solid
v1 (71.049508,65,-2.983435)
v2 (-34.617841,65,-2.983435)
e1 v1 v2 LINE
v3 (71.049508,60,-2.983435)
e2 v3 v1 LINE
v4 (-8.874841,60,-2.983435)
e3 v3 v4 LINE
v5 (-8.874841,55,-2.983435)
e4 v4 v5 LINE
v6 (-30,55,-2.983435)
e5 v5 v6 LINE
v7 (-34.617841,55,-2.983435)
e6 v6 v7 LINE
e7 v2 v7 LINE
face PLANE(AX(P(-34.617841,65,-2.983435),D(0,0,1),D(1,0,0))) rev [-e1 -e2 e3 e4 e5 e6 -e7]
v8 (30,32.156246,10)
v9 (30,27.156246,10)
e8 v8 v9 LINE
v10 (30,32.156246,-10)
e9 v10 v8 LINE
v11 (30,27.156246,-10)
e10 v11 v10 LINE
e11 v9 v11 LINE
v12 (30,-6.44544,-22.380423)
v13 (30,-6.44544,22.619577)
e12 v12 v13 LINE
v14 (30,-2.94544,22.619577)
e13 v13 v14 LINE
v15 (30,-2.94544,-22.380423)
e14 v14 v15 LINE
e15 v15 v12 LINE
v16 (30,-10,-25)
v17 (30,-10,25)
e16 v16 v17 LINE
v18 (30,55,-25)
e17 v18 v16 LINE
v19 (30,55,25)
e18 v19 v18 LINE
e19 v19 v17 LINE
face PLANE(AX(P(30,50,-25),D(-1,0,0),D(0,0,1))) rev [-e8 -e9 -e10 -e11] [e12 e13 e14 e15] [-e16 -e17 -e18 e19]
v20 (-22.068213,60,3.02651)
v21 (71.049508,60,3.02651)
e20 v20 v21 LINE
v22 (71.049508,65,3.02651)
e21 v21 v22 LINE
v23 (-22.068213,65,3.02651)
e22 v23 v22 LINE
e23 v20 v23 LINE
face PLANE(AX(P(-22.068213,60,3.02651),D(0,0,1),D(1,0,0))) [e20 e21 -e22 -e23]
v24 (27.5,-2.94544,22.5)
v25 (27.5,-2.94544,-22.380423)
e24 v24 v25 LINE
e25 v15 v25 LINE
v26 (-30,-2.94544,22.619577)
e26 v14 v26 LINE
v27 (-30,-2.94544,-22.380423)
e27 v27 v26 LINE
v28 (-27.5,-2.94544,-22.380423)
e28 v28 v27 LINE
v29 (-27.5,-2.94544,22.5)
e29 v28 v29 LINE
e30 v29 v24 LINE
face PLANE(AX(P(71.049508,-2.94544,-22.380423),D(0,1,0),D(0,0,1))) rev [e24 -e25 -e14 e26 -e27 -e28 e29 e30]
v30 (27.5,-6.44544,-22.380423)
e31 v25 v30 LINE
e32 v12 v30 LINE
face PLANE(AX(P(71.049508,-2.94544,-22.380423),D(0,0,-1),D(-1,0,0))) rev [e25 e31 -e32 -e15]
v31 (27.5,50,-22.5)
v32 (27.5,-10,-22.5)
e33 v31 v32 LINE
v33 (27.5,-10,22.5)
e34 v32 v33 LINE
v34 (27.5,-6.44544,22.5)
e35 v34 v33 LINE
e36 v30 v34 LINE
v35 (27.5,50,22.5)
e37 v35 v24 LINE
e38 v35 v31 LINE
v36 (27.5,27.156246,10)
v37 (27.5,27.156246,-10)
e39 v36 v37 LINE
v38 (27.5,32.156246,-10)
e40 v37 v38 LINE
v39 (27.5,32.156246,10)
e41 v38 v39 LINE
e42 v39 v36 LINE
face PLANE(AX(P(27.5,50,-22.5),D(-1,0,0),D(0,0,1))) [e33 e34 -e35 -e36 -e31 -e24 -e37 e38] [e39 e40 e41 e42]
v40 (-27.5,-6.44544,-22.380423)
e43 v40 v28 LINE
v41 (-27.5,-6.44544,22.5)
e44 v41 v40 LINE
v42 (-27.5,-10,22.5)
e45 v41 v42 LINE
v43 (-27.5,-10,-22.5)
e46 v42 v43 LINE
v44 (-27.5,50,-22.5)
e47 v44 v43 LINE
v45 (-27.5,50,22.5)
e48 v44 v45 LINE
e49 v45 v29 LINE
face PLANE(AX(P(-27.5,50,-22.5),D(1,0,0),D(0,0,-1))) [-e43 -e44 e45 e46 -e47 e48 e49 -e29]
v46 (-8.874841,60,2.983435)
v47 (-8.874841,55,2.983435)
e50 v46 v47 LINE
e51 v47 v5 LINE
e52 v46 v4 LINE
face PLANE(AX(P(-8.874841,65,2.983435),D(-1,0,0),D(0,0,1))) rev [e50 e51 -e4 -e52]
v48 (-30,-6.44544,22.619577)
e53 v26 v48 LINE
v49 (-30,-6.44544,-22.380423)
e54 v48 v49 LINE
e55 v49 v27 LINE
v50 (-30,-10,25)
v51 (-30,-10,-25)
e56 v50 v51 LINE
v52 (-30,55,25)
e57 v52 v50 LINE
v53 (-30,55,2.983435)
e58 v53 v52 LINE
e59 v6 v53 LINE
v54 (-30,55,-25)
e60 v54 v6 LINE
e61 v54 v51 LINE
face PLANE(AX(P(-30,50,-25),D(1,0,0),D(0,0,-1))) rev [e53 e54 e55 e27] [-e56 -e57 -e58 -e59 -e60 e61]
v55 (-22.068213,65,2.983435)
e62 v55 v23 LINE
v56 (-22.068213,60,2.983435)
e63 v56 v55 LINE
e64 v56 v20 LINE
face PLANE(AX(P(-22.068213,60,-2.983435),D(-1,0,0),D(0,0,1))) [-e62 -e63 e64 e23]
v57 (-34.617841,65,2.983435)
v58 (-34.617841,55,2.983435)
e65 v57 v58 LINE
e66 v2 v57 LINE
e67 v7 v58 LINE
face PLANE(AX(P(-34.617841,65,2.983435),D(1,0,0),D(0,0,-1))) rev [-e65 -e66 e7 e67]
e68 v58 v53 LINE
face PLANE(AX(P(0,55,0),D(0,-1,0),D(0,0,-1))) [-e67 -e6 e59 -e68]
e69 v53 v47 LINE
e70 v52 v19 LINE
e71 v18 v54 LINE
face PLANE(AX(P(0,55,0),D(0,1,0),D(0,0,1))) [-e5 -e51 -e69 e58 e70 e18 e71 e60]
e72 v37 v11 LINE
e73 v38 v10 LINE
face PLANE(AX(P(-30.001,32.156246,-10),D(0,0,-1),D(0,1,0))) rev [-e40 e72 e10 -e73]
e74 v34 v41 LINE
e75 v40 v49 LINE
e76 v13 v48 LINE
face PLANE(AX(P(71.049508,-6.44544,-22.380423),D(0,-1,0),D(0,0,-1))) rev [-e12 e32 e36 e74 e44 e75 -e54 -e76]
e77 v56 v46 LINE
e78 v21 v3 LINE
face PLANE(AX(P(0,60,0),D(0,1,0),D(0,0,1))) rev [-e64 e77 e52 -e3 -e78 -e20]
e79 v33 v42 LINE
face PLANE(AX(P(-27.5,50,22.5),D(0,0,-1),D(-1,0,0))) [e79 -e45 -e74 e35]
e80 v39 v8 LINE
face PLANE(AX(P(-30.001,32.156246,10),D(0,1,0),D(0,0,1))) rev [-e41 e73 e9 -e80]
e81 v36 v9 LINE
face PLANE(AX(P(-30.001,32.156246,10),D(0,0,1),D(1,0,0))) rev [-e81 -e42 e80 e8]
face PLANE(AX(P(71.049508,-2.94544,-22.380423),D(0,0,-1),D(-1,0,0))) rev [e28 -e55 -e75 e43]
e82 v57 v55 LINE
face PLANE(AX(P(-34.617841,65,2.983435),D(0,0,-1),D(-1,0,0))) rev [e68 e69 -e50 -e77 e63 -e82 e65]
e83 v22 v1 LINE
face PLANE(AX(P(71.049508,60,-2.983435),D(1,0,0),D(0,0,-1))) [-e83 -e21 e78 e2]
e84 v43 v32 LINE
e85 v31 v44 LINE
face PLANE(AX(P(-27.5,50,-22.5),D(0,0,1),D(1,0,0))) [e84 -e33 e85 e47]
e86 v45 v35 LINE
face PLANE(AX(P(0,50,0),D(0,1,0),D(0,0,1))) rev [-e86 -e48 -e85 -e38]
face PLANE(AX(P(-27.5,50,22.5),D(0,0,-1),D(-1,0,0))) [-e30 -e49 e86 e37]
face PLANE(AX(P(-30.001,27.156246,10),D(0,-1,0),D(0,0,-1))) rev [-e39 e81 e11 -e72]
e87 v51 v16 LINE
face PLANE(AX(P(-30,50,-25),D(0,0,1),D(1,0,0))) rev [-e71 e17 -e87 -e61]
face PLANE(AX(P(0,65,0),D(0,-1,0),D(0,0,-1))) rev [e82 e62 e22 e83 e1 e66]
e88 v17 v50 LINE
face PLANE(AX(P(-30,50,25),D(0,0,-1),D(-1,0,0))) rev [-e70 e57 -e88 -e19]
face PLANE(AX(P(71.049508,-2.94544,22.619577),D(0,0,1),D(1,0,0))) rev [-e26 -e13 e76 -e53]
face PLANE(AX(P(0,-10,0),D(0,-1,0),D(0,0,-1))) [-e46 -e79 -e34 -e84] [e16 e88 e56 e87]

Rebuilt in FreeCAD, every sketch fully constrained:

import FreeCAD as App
import Part
import Sketcher
from FreeCAD import Vector
Q = App.Units.Quantity


def add_polygon(sketch, points):
    """Adds a closed chain of lines whose ends are joined by coincident constraints."""
    first, n = sketch.GeometryCount, len(points)
    for a, b in zip(points, points[1:] + points[:1]):
        sketch.addGeometry(Part.LineSegment(App.Vector(*a, 0), App.Vector(*b, 0)), False)
    for i in range(n):
        sketch.addConstraint(Sketcher.Constraint("Coincident", first + i, 2, first + (i + 1) % n, 1))

doc = App.newDocument("Part")
body = doc.addObject("PartDesign::Body", "Body")

sketch1 = body.newObject("Sketcher::SketchObject", "Sketch")
sketch1.AttachmentSupport = (doc.getObject("XZ_Plane"), [""])
sketch1.MapMode = "FlatFace"
add_polygon(sketch1, [(-30, -25), (-30, 25), (30, 25), (30, -25)])
add_polygon(sketch1, [(28, 22), (-28, 22), (-28, -22), (28, -22)])
sketch1.addConstraint(Sketcher.Constraint("Vertical", 0))
sketch1.addConstraint(Sketcher.Constraint("Horizontal", 1))
sketch1.addConstraint(Sketcher.Constraint("Vertical", 2))
sketch1.addConstraint(Sketcher.Constraint("Horizontal", 3))
sketch1.addConstraint(Sketcher.Constraint("Horizontal", 4))
sketch1.addConstraint(Sketcher.Constraint("Vertical", 5))
sketch1.addConstraint(Sketcher.Constraint("Horizontal", 6))
sketch1.addConstraint(Sketcher.Constraint("Vertical", 7))
sketch1.addConstraint(Sketcher.Constraint("Symmetric", 0, 2, 2, 2, -1, 1))
sketch1.addConstraint(Sketcher.Constraint("Symmetric", 4, 2, 6, 2, -1, 1))
sketch1.addConstraint(Sketcher.Constraint("DistanceX", 1, 1, 1, 2, Q("60 mm")))
sketch1.addConstraint(Sketcher.Constraint("DistanceX", 4, 2, 4, 1, Q("55 mm")))
sketch1.addConstraint(Sketcher.Constraint("DistanceY", 0, 1, 0, 2, Q("50 mm")))
sketch1.addConstraint(Sketcher.Constraint("DistanceY", 5, 2, 5, 1, Q("45 mm")))
pad1 = body.newObject("PartDesign::Pad", "Pad")
pad1.Profile = sketch1
pad1.Length = 50
pad1.Reversed = True

sketch2 = body.newObject("Sketcher::SketchObject", "Sketch001")
sketch2.AttachmentSupport = (doc.getObject("XZ_Plane"), [""])
sketch2.MapMode = "FlatFace"
sketch2.AttachmentOffset = App.Placement(Vector(0, 0, -50), App.Rotation())
add_polygon(sketch2, [(-30, -25), (-30, 25), (30, 25), (30, -25)])
sketch2.addConstraint(Sketcher.Constraint("Vertical", 0))
sketch2.addConstraint(Sketcher.Constraint("Horizontal", 1))
sketch2.addConstraint(Sketcher.Constraint("Vertical", 2))
sketch2.addConstraint(Sketcher.Constraint("Horizontal", 3))
sketch2.addConstraint(Sketcher.Constraint("Symmetric", 0, 2, 2, 2, -1, 1))
sketch2.addConstraint(Sketcher.Constraint("DistanceX", 1, 1, 1, 2, Q("60 mm")))
sketch2.addConstraint(Sketcher.Constraint("DistanceY", 0, 1, 0, 2, Q("50 mm")))
pad2 = body.newObject("PartDesign::Pad", "Pad001")
pad2.Profile = sketch2
pad2.Length = 5
pad2.Reversed = True

sketch3 = body.newObject("Sketcher::SketchObject", "Sketch002")
sketch3.AttachmentSupport = (doc.getObject("YZ_Plane"), [""])
sketch3.MapMode = "FlatFace"
sketch3.AttachmentOffset = App.Placement(Vector(0, 0, 30), App.Rotation())
add_polygon(sketch3, [(32, 10), (27, 10), (27, -10), (32, -10)])
sketch3.addConstraint(Sketcher.Constraint("Horizontal", 0))
sketch3.addConstraint(Sketcher.Constraint("Vertical", 1))
sketch3.addConstraint(Sketcher.Constraint("Horizontal", 2))
sketch3.addConstraint(Sketcher.Constraint("Vertical", 3))
sketch3.addConstraint(Sketcher.Constraint("DistanceX", 0, 2, 0, 1, Q("5 mm")))
sketch3.addConstraint(Sketcher.Constraint("DistanceY", 1, 2, 1, 1, Q("20 mm")))
sketch3.addConstraint(Sketcher.Constraint("DistanceY", -1, 1, 0, 2, Q("10 mm")))
sketch3.addConstraint(Sketcher.Constraint("DistanceX", -1, 1, 0, 2, Q("27.156246 mm")))
pocket1 = body.newObject("PartDesign::Pocket", "Pocket")
pocket1.Profile = sketch3
pocket1.Type = "UpToFirst"

sketch4 = body.newObject("Sketcher::SketchObject", "Sketch003")
sketch4.AttachmentSupport = (doc.getObject("XZ_Plane"), [""])
sketch4.MapMode = "FlatFace"
sketch4.AttachmentOffset = App.Placement(Vector(0, 0, -55), App.Rotation())
add_polygon(sketch4, [(-35, -3), (-35, 3), (-9, 3), (-9, -3)])
sketch4.addConstraint(Sketcher.Constraint("Vertical", 0))
sketch4.addConstraint(Sketcher.Constraint("Horizontal", 1))
sketch4.addConstraint(Sketcher.Constraint("Vertical", 2))
sketch4.addConstraint(Sketcher.Constraint("Horizontal", 3))
sketch4.addConstraint(Sketcher.Constraint("DistanceX", 1, 1, 1, 2, Q("25.743 mm")))
sketch4.addConstraint(Sketcher.Constraint("DistanceY", 0, 1, 0, 2, Q("5.966871 mm")))
sketch4.addConstraint(Sketcher.Constraint("DistanceX", 0, 2, -1, 1, Q("34.617841 mm")))
sketch4.addConstraint(Sketcher.Constraint("DistanceY", -1, 1, 0, 2, Q("2.983435 mm")))
pad3 = body.newObject("PartDesign::Pad", "Pad002")
pad3.Profile = sketch4
pad3.Length = 10
pad3.Reversed = True

sketch5 = body.newObject("Sketcher::SketchObject", "Sketch004")
sketch5.AttachmentSupport = (doc.getObject("XZ_Plane"), [""])
sketch5.MapMode = "FlatFace"
sketch5.AttachmentOffset = App.Placement(Vector(0, 0, -65), App.Rotation())
add_polygon(sketch5, [(-22, -3), (-22, 3), (71, 3), (71, -3)])
sketch5.addConstraint(Sketcher.Constraint("Vertical", 0))
sketch5.addConstraint(Sketcher.Constraint("Horizontal", 1))
sketch5.addConstraint(Sketcher.Constraint("Vertical", 2))
sketch5.addConstraint(Sketcher.Constraint("Horizontal", 3))
sketch5.addConstraint(Sketcher.Constraint("DistanceX", 1, 1, 1, 2, Q("93.11772 mm")))
sketch5.addConstraint(Sketcher.Constraint("DistanceY", 0, 1, 0, 2, Q("6.009945 mm")))
sketch5.addConstraint(Sketcher.Constraint("DistanceY", -1, 1, 0, 2, Q("3.02651 mm")))
sketch5.addConstraint(Sketcher.Constraint("DistanceX", 0, 2, -1, 1, Q("22.068213 mm")))
pad4 = body.newObject("PartDesign::Pad", "Pad003")
pad4.Profile = sketch5
pad4.Length = 5

sketch6 = body.newObject("Sketcher::SketchObject", "Sketch005")
sketch6.AttachmentSupport = (doc.getObject("XZ_Plane"), [""])
sketch6.MapMode = "FlatFace"
add_polygon(sketch6, [(-30, 25), (-30, -25), (30, -25), (30, 25)])
add_polygon(sketch6, [(28, -22), (-28, -22), (-28, 22), (28, 22)])
sketch6.addConstraint(Sketcher.Constraint("Vertical", 0))
sketch6.addConstraint(Sketcher.Constraint("Horizontal", 1))
sketch6.addConstraint(Sketcher.Constraint("Vertical", 2))
sketch6.addConstraint(Sketcher.Constraint("Horizontal", 3))
sketch6.addConstraint(Sketcher.Constraint("Horizontal", 4))
sketch6.addConstraint(Sketcher.Constraint("Vertical", 5))
sketch6.addConstraint(Sketcher.Constraint("Horizontal", 6))
sketch6.addConstraint(Sketcher.Constraint("Vertical", 7))
sketch6.addConstraint(Sketcher.Constraint("Symmetric", 0, 2, 2, 2, -1, 1))
sketch6.addConstraint(Sketcher.Constraint("Symmetric", 4, 2, 6, 2, -1, 1))
sketch6.addConstraint(Sketcher.Constraint("DistanceX", 1, 1, 1, 2, Q("60 mm")))
sketch6.addConstraint(Sketcher.Constraint("DistanceX", 4, 2, 4, 1, Q("55 mm")))
sketch6.addConstraint(Sketcher.Constraint("DistanceY", 0, 2, 0, 1, Q("50 mm")))
sketch6.addConstraint(Sketcher.Constraint("DistanceY", 5, 1, 5, 2, Q("45 mm")))
pad5 = body.newObject("PartDesign::Pad", "Pad004")
pad5.Profile = sketch6
pad5.Length = 10

sketch7 = body.newObject("Sketcher::SketchObject", "Sketch006")
sketch7.AttachmentSupport = (doc.getObject("YZ_Plane"), [""])
sketch7.MapMode = "FlatFace"
sketch7.AttachmentOffset = App.Placement(Vector(0, 0, -30), App.Rotation())
add_polygon(sketch7, [(-2.9, -22.4), (-6.4, -22.4), (-6.4, 22.6), (-2.9, 22.6)])
sketch7.addConstraint(Sketcher.Constraint("Horizontal", 0))
sketch7.addConstraint(Sketcher.Constraint("Vertical", 1))
sketch7.addConstraint(Sketcher.Constraint("Horizontal", 2))
sketch7.addConstraint(Sketcher.Constraint("Vertical", 3))
sketch7.addConstraint(Sketcher.Constraint("DistanceY", 1, 1, 1, 2, Q("45 mm")))
sketch7.addConstraint(Sketcher.Constraint("DistanceX", 0, 2, 0, 1, Q("3.5 mm")))
sketch7.addConstraint(Sketcher.Constraint("DistanceX", 0, 2, -1, 1, Q("6.44544 mm")))
sketch7.addConstraint(Sketcher.Constraint("DistanceY", 0, 2, -1, 1, Q("22.380423 mm")))
pocket2 = body.newObject("PartDesign::Pocket", "Pocket001")
pocket2.Profile = sketch7
pocket2.Type = "ThroughAll"
pocket2.Midplane = True

doc.recompute()
